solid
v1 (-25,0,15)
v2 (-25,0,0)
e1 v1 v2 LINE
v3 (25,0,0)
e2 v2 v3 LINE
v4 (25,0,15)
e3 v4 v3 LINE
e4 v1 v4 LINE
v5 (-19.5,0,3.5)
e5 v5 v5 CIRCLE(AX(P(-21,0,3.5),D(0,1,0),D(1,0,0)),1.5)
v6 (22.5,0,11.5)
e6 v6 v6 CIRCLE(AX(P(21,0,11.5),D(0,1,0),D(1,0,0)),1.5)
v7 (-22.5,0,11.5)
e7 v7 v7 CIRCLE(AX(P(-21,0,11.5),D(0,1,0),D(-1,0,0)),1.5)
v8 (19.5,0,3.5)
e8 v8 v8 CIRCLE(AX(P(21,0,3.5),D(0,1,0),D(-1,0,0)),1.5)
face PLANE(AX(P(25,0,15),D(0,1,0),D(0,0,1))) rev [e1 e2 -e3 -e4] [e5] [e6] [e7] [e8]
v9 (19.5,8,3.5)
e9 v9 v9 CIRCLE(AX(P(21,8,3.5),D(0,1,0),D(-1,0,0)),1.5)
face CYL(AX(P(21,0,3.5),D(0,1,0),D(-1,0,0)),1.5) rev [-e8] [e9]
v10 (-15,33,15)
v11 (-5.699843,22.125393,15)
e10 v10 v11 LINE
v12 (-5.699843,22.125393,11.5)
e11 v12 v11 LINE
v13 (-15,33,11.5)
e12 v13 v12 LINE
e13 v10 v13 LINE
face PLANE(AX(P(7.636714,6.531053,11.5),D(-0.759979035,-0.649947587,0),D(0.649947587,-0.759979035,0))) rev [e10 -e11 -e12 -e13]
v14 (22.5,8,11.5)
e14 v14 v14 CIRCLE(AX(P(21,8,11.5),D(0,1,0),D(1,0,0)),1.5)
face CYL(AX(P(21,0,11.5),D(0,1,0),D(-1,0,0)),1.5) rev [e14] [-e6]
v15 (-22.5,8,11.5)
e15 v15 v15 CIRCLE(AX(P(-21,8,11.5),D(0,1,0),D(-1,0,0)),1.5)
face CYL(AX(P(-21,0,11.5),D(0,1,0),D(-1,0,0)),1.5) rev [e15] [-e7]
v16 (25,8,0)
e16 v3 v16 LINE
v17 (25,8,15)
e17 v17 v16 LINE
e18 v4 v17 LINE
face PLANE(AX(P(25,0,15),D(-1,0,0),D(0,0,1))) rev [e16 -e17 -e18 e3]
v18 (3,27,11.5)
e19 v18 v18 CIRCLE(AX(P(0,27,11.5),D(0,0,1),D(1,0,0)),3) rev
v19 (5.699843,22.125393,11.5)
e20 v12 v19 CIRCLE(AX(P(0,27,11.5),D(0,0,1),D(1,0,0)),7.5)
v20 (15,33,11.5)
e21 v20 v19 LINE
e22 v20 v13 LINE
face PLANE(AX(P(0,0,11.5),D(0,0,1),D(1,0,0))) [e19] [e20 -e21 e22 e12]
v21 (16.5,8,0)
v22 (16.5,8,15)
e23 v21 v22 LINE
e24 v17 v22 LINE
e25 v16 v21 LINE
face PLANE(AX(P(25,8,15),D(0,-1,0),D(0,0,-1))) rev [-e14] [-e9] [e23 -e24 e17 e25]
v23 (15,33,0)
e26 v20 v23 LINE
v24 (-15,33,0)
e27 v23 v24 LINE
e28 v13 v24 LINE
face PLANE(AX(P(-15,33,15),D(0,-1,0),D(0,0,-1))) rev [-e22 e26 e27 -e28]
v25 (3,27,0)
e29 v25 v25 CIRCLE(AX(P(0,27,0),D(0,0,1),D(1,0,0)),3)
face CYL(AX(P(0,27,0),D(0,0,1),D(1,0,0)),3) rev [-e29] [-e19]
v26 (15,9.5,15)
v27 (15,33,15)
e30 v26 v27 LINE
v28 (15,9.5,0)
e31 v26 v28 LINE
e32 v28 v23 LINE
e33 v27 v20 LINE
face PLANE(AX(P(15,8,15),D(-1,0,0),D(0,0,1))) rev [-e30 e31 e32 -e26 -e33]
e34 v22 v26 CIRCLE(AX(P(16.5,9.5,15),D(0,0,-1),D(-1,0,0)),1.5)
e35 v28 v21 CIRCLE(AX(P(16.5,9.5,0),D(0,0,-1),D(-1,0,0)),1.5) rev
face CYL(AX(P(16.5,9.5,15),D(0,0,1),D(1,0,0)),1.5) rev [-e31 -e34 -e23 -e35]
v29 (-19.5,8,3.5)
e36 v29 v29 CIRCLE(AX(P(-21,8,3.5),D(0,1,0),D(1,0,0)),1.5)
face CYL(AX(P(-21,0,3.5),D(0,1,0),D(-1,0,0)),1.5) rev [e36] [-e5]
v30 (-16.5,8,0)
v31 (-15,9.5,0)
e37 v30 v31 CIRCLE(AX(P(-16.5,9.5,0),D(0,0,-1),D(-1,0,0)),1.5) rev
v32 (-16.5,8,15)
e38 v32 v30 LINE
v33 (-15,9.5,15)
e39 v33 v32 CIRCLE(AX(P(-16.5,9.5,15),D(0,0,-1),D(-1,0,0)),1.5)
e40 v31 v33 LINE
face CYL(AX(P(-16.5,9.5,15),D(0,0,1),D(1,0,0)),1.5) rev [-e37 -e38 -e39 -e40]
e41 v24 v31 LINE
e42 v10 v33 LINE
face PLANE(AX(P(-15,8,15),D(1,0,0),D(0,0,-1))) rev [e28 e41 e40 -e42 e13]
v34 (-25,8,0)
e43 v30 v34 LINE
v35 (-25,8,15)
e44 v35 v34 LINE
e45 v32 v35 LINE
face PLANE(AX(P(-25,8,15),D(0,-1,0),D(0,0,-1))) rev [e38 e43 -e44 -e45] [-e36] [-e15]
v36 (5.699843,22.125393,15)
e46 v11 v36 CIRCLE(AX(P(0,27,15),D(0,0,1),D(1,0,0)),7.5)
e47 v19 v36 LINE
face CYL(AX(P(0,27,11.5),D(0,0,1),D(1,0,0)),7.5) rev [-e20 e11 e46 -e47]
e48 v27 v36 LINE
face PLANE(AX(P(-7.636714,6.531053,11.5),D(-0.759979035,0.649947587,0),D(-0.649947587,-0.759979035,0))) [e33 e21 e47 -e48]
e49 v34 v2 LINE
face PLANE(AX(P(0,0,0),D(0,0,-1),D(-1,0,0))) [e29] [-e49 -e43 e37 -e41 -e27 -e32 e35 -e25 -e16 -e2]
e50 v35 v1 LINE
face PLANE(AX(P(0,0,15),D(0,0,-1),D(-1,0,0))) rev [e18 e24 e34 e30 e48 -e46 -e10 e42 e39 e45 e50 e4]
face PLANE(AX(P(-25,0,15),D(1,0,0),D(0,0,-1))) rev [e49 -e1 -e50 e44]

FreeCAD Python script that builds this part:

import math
import FreeCAD as App
import Part
import Sketcher


def edges_at(feature, points):
    """Names of the edges that pass closest to the given points."""
    edges = feature.Shape.Edges
    near = lambda p: min(range(len(edges)), key=lambda i: edges[i].distToShape(Part.Vertex(*p))[0])
    return sorted({f"Edge{near(p) + 1}" for p in points})


def add_polygon(sketch, points):
    """Adds a closed chain of lines whose ends are joined by coincident constraints."""
    first, n = sketch.GeometryCount, len(points)
    for a, b in zip(points, points[1:] + points[:1]):
        sketch.addGeometry(Part.LineSegment(App.Vector(*a, 0), App.Vector(*b, 0)), False)
    for i in range(n):
        sketch.addConstraint(Sketcher.Constraint("Coincident", first + i, 2, first + (i + 1) % n, 1))

doc = App.newDocument("Part")
params = doc.addObject("Spreadsheet::Sheet", "Params")
for row, (alias, value) in enumerate([
    ("sketch1_width", "50 mm"),
    ("sketch1_width2", "10 mm"),
    ("sketch1_height", "8 mm"),
    ("sketch1_height2", "25 mm"),
    ("pad1_length", "15 mm"),
    ("sketch2_diameter", "6 mm"),
    ("sketch3_diameter", "3 mm"),
    ("fillet_radius", "1.5 mm"),
    ("sketch4_radius", "3 mm"),
    ("sketch4_radius2", "7.5 mm"),
    ("sketch4_width", "30 mm"),
    ("pocket3_length", "3.5 mm"),
], start=1):
    params.set(f"A{row}", alias)
    params.set(f"B{row}", "=" + value)
    params.setAlias(f"B{row}", alias)

body = doc.addObject("PartDesign::Body", "Body")

# Sketch on XY plane
sketch1 = body.newObject("Sketcher::SketchObject", "Sketch")
sketch1.AttachmentSupport = (doc.getObject("XY_Plane"), [""])
sketch1.MapMode = "FlatFace"
add_polygon(sketch1, [(-25, 0), (25, 0), (25, 8), (15, 8), (15, 33), (-15, 33), (-15, 8), (-25, 8)])  # lines 0-7
sketch1.addConstraint([
    Sketcher.Constraint("Horizontal", 0),
    Sketcher.Constraint("Vertical", 1),
    Sketcher.Constraint("Horizontal", 2),
    Sketcher.Constraint("Vertical", 3),
    Sketcher.Constraint("Horizontal", 4),
    Sketcher.Constraint("Vertical", 5),
    Sketcher.Constraint("Horizontal", 6),
    Sketcher.Constraint("Vertical", 7),
    Sketcher.Constraint("Symmetric", 0, 2, 7, 2, -1, 1),
    Sketcher.Constraint("Symmetric", 2, 2, 5, 2, -2),
    Sketcher.Constraint("DistanceX", 0, 1, 0, 2, 50.0),
    Sketcher.Constraint("DistanceX", 2, 2, 2, 1, 10.0),
    Sketcher.Constraint("DistanceY", 1, 1, 1, 2, 8.0),
    Sketcher.Constraint("DistanceY", 3, 1, 3, 2, 25.0),
])
sketch1.setExpression("Constraints[18]", "Params.sketch1_width")
sketch1.setExpression("Constraints[19]", "Params.sketch1_width2")
sketch1.setExpression("Constraints[20]", "Params.sketch1_height")
sketch1.setExpression("Constraints[21]", "Params.sketch1_height2")
pad1 = body.newObject("PartDesign::Pad", "Pad")
pad1.Profile = sketch1
pad1.setExpression("Length", "Params.pad1_length")

# Sketch on XY plane
sketch2 = body.newObject("Sketcher::SketchObject", "Sketch001")
sketch2.AttachmentSupport = (doc.getObject("XY_Plane"), [""])
sketch2.MapMode = "FlatFace"
sketch2.AttachmentOffset = App.Placement(App.Vector(0, 0, 15), App.Rotation())
sketch2.addGeometry(Part.Circle(App.Vector(0, 27, 0), App.Vector(0, 0, 1), 3), False)
sketch2.addConstraint([
    Sketcher.Constraint("PointOnObject", 0, 3, -2),
    Sketcher.Constraint("Diameter", 0, 6.0),
    Sketcher.Constraint("DistanceY", -1, 1, 0, 3, 27.0),
])
sketch2.setExpression("Constraints[1]", "Params.sketch2_diameter")
pocket1 = body.newObject("PartDesign::Pocket", "Pocket")
pocket1.Profile = sketch2
pocket1.Type = "ThroughAll"

# Sketch on XZ plane
sketch3 = body.newObject("Sketcher::SketchObject", "Sketch002")
sketch3.AttachmentSupport = (doc.getObject("XZ_Plane"), [""])
sketch3.MapMode = "FlatFace"
sketch3.AttachmentOffset = App.Placement(App.Vector(0, 0, -8), App.Rotation())
sketch3.addGeometry([
    Part.Circle(App.Vector(21, 3.5, 0), App.Vector(0, 0, 1), 1.5),
    Part.Circle(App.Vector(21, 11.5, 0), App.Vector(0, 0, 1), 1.5),
    Part.Circle(App.Vector(-21, 11.5, 0), App.Vector(0, 0, 1), 1.5),
    Part.Circle(App.Vector(-21, 3.5, 0), App.Vector(0, 0, 1), 1.5),
], False)
sketch3.addConstraint([
    Sketcher.Constraint("Equal", 0, 1),
    Sketcher.Constraint("Equal", 1, 2),
    Sketcher.Constraint("Equal", 2, 3),
    Sketcher.Constraint("Symmetric", 1, 3, 2, 3, -2),
    Sketcher.Constraint("Symmetric", 0, 3, 3, 3, -2),
    Sketcher.Constraint("Vertical", 0, 3, 1, 3),
    Sketcher.Constraint("Diameter", 0, 3.0),
    Sketcher.Constraint("DistanceX", -1, 1, 0, 3, 21.0),
    Sketcher.Constraint("DistanceY", 0, 3, 1, 3, 8.0),
    Sketcher.Constraint("DistanceY", -1, 1, 0, 3, 3.5),
])
sketch3.setExpression("Constraints[6]", "Params.sketch3_diameter")
pocket2 = body.newObject("PartDesign::Pocket", "Pocket001")
pocket2.Profile = sketch3
pocket2.Type = "ThroughAll"
pocket2.Reversed = True
doc.recompute()

fillet = body.newObject("PartDesign::Fillet", "Fillet")
fillet.Base = (pocket2, edges_at(pocket2, [(-15, 8, 7.5), (15, 8, 7.5)]))
fillet.setExpression("Radius", "Params.fillet_radius")

# Sketch on XY plane
sketch4 = body.newObject("Sketcher::SketchObject", "Sketch003")
sketch4.AttachmentSupport = (doc.getObject("XY_Plane"), [""])
sketch4.MapMode = "FlatFace"
sketch4.AttachmentOffset = App.Placement(App.Vector(0, 0, 15), App.Rotation())
sketch4.addGeometry([
    Part.LineSegment(App.Vector(-15, 33, 0), App.Vector(-5.699843, 22.125393, 0)),  # 0
    Part.ArcOfCircle(Part.Circle(App.Vector(0, 27, 0), App.Vector(0, 0, 1), 7.5), math.radians(-139.46235), math.radians(-90)),  # 1
    Part.ArcOfCircle(Part.Circle(App.Vector(0, 27, 0), App.Vector(0, 0, 1), 7.5), math.radians(-90), math.radians(-40.53765)),  # 2
    Part.LineSegment(App.Vector(5.699843, 22.125393, 0), App.Vector(15, 33, 0)),  # 3
    Part.LineSegment(App.Vector(15, 33, 0), App.Vector(-15, 33, 0)),  # 4
    Part.ArcOfCircle(Part.Circle(App.Vector(0, 27, 0), App.Vector(0, 0, 1), 3), math.radians(90), math.radians(270)),  # 5
    Part.ArcOfCircle(Part.Circle(App.Vector(0, 27, 0), App.Vector(0, 0, 1), 3), math.radians(0), math.radians(90)),  # 6
    Part.ArcOfCircle(Part.Circle(App.Vector(0, 27, 0), App.Vector(0, 0, 1), 3), math.radians(-90), math.radians(0)),  # 7
], False)
sketch4.addConstraint([
    Sketcher.Constraint("Tangent", 0, 2, 1, 1),
    Sketcher.Constraint("Tangent", 1, 2, 2, 1),
    Sketcher.Constraint("Tangent", 2, 2, 3, 1),
    Sketcher.Constraint("Coincident", 3, 2, 4, 1),
    Sketcher.Constraint("Coincident", 4, 2, 0, 1),
    Sketcher.Constraint("Tangent", 5, 1, 6, 2),
    Sketcher.Constraint("Tangent", 6, 1, 7, 2),
    Sketcher.Constraint("Tangent", 7, 1, 5, 2),
    Sketcher.Constraint("Horizontal", 4),
    Sketcher.Constraint("Coincident", 5, 3, 1, 3),
    Sketcher.Constraint("Equal", 1, 2),
    Sketcher.Constraint("Symmetric", 0, 2, 2, 2, -2),
    Sketcher.Constraint("PointOnObject", 1, 2, -2),
    Sketcher.Constraint("PointOnObject", 5, 1, -2),
    Sketcher.Constraint("PointOnObject", 7, 1, -2),
    Sketcher.Constraint("Horizontal", 7, 3, 6, 1),
    Sketcher.Constraint("Radius", 5, 3.0),
    Sketcher.Constraint("Radius", 1, 7.5),
    Sketcher.Constraint("DistanceX", 4, 2, 4, 1, 30.0),
    Sketcher.Constraint("DistanceY", -1, 1, 1, 3, 27.0),
    Sketcher.Constraint("DistanceY", -1, 1, 3, 2, 33.0),
])
sketch4.setExpression("Constraints[16]", "Params.sketch4_radius")
sketch4.setExpression("Constraints[17]", "Params.sketch4_radius2")
sketch4.setExpression("Constraints[18]", "Params.sketch4_width")
pocket3 = body.newObject("PartDesign::Pocket", "Pocket002")
pocket3.Profile = sketch4
pocket3.setExpression("Length", "Params.pocket3_length")

doc.recompute()
